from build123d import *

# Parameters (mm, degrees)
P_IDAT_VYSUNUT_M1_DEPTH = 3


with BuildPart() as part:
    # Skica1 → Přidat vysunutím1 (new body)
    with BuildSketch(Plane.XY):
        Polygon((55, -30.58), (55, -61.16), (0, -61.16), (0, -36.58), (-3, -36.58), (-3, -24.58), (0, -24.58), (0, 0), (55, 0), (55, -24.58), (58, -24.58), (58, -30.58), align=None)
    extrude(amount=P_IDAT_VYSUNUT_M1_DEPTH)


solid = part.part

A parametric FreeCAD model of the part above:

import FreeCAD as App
import Part
import Sketcher
from FreeCAD import Vector


def add_polygon(sketch, points):
    """Adds a closed chain of lines whose ends are joined by coincident constraints."""
    first, n = sketch.GeometryCount, len(points)
    for a, b in zip(points, points[1:] + points[:1]):
        sketch.addGeometry(Part.LineSegment(App.Vector(*a, 0), App.Vector(*b, 0)), False)
    for i in range(n):
        sketch.addConstraint(Sketcher.Constraint("Coincident", first + i, 2, first + (i + 1) % n, 1))

doc = App.newDocument("Part")
params = doc.addObject("Spreadsheet::Sheet", "Params")
for row, (alias, value) in enumerate([
    ("sketch1_width", "3 mm"),
    ("sketch1_width2", "55 mm"),
    ("sketch1_height", "6 mm"),
    ("sketch1_height2", "12 mm"),
    ("sketch1_height3", "30.58 mm"),
    ("pad1_length", "3 mm"),
], start=1):
    params.set(f"A{row}", alias)
    params.set(f"B{row}", "=" + value)
    params.setAlias(f"B{row}", alias)

body = doc.addObject("PartDesign::Body", "Body")

# Sketch on XY plane
sketch1 = doc.addObject("Sketcher::SketchObject", "Sketch")
body.addObject(sketch1)
sketch1.AttachmentSupport = (doc.XY_Plane, [""])
sketch1.MapMode = "FlatFace"
add_polygon(sketch1, [(55, -61.2), (55, -30.6), (58, -30.6), (58, -24.6), (55, -24.6), (55, 0), (0, 0), (0, -24.6), (-3, -24.6), (-3, -36.6), (0, -36.6), (0, -61.2)])  # lines 0-11
sketch1.addConstraint([
    Sketcher.Constraint("Vertical", 0),
    Sketcher.Constraint("Horizontal", 1),
    Sketcher.Constraint("Vertical", 2),
    Sketcher.Constraint("Horizontal", 3),
    Sketcher.Constraint("Vertical", 4),
    Sketcher.Constraint("Horizontal", 5),
    Sketcher.Constraint("Vertical", 6),
    Sketcher.Constraint("Horizontal", 7),
    Sketcher.Constraint("Vertical", 8),
    Sketcher.Constraint("Horizontal", 9),
    Sketcher.Constraint("Vertical", 10),
    Sketcher.Constraint("Horizontal", 11),
    Sketcher.Constraint("Coincident", 5, 2, -1, 1),
    Sketcher.Constraint("PointOnObject", 9, 2, -2),
    Sketcher.Constraint("Horizontal", 3, 2, 6, 2),
    Sketcher.Constraint("Vertical", 0, 2, 3, 2),
    Sketcher.Constraint("Equal", 3, 7),
    Sketcher.Constraint("Equal", 6, 10),
    Sketcher.Constraint("DistanceX", 1, 1, 1, 2, 3.0),
    Sketcher.Constraint("DistanceX", 5, 2, 5, 1, 55.0),
    Sketcher.Constraint("DistanceY", 2, 1, 2, 2, 6.0),
    Sketcher.Constraint("DistanceY", 8, 2, 8, 1, 12.0),
    Sketcher.Constraint("DistanceY", 0, 1, 0, 2, 30.58),
])
sketch1.setExpression("Constraints[30]", "Params.sketch1_width")
sketch1.setExpression("Constraints[31]", "Params.sketch1_width2")
sketch1.setExpression("Constraints[32]", "Params.sketch1_height")
sketch1.setExpression("Constraints[33]", "Params.sketch1_height2")
sketch1.setExpression("Constraints[34]", "Params.sketch1_height3")
pad1 = doc.addObject("PartDesign::Pad", "Pad")
body.addObject(pad1)
pad1.Profile = sketch1
pad1.setExpression("Length", "Params.pad1_length")

doc.recompute()
